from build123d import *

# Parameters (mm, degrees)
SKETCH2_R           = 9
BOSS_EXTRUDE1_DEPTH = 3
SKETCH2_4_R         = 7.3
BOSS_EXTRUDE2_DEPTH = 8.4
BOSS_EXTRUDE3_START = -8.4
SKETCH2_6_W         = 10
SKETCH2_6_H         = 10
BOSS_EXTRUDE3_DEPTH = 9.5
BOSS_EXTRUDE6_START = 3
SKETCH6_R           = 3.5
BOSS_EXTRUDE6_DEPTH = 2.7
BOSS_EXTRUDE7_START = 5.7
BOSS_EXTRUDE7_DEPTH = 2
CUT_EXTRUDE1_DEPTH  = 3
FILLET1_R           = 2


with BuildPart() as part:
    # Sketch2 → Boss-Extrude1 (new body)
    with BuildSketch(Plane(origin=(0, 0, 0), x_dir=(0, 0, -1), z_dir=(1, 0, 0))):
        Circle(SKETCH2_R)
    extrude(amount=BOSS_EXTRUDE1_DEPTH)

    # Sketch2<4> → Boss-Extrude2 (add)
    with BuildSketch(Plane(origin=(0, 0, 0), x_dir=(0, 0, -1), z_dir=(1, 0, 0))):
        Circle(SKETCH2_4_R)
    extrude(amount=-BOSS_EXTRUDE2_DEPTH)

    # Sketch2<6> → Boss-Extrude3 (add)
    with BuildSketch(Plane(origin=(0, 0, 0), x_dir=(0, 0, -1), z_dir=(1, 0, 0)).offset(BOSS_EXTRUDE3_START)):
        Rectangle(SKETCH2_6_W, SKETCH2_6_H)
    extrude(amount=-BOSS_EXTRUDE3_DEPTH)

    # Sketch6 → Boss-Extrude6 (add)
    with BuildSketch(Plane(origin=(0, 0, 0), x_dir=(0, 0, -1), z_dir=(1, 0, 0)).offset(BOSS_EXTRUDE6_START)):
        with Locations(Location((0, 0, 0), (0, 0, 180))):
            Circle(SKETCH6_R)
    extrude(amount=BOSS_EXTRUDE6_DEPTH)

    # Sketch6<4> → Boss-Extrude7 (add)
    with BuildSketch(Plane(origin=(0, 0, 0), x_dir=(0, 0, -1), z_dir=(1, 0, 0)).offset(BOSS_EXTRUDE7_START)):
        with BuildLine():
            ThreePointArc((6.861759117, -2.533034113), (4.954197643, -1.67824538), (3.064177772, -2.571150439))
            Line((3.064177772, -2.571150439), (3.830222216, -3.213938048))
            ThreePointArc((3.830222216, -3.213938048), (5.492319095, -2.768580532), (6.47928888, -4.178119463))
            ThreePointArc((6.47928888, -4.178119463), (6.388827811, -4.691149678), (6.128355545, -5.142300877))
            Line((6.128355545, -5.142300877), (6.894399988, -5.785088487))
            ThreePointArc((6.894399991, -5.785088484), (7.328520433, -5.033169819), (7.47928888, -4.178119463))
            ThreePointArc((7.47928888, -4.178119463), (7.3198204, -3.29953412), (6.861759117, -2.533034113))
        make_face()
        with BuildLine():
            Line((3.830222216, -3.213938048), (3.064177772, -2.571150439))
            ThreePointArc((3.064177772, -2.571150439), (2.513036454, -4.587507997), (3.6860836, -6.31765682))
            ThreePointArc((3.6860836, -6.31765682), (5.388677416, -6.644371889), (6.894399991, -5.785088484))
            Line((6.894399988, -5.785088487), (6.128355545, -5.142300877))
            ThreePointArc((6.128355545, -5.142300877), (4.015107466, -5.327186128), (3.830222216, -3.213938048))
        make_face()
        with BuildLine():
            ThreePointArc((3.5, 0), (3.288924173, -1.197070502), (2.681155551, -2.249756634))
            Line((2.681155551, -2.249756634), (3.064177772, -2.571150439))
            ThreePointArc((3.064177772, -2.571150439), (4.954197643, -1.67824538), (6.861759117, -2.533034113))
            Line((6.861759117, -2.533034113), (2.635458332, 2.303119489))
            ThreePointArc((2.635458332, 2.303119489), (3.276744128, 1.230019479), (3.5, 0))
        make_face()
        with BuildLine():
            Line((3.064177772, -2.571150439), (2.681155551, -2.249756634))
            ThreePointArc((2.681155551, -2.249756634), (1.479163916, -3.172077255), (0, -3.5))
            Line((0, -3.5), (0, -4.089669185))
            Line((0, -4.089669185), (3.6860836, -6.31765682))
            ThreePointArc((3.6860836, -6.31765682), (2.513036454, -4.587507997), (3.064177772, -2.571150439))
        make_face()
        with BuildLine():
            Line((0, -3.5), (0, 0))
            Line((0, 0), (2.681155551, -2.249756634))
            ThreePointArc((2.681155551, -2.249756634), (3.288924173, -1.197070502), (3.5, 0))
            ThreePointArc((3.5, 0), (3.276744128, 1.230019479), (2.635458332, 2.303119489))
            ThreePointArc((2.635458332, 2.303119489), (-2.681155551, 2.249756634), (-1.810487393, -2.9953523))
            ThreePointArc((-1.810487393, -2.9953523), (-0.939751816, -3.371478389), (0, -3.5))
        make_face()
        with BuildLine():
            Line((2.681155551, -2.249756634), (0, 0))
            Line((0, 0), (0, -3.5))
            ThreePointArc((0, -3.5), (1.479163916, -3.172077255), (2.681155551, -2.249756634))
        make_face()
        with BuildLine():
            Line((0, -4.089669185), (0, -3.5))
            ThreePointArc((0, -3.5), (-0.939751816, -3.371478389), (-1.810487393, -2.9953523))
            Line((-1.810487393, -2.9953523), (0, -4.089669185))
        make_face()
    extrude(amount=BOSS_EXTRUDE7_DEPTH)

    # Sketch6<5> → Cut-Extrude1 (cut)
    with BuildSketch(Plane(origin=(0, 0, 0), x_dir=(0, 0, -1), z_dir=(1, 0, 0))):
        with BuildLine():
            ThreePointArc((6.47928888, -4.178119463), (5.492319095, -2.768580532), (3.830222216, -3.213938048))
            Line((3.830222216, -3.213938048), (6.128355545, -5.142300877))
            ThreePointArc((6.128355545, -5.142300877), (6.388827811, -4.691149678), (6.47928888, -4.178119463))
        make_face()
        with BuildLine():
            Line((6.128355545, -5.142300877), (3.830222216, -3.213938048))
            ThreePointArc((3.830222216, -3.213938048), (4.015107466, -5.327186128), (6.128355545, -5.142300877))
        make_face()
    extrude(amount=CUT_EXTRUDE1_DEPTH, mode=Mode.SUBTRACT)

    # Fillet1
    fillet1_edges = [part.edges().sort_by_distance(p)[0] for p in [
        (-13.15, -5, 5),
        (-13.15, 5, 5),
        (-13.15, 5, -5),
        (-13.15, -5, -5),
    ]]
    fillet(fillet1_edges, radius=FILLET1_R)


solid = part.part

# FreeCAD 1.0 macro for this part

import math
import FreeCAD as App
import Part
import Sketcher
Q = App.Units.Quantity


def edges_at(feature, points):
    """Names of the edges that pass closest to the given points."""
    edges = feature.Shape.Edges
    near = lambda p: min(range(len(edges)), key=lambda i: edges[i].distToShape(Part.Vertex(*p))[0])
    return sorted({f"Edge{near(p) + 1}" for p in points})


def add_polygon(sketch, points):
    """Adds a closed chain of lines whose ends are joined by coincident constraints."""
    first, n = sketch.GeometryCount, len(points)
    for a, b in zip(points, points[1:] + points[:1]):
        sketch.addGeometry(Part.LineSegment(App.Vector(*a, 0), App.Vector(*b, 0)), False)
    for i in range(n):
        sketch.addConstraint(Sketcher.Constraint("Coincident", first + i, 2, first + (i + 1) % n, 1))

doc = App.newDocument("Part")
body = doc.addObject("PartDesign::Body", "Body")

# Sketch on YZ plane
sketch1 = doc.addObject("Sketcher::SketchObject", "Sketch")
body.addObject(sketch1)
sketch1.AttachmentSupport = (doc.YZ_Plane, [""])
sketch1.MapMode = "FlatFace"
sketch1.addGeometry(Part.Circle(App.Vector(0, 0, 0), App.Vector(0, 0, 1), 9), False)
sketch1.addConstraint(Sketcher.Constraint("Coincident", 0, 3, -1, 1))
sketch1.addConstraint(Sketcher.Constraint("Diameter", 0, Q("18 mm")))
pad1 = doc.addObject("PartDesign::Pad", "Pad")
body.addObject(pad1)
pad1.Profile = sketch1
pad1.Length = 3

# Sketch on YZ plane
sketch2 = doc.addObject("Sketcher::SketchObject", "Sketch001")
body.addObject(sketch2)
sketch2.AttachmentSupport = (doc.YZ_Plane, [""])
sketch2.MapMode = "FlatFace"
sketch2.addGeometry(Part.Circle(App.Vector(0, 0, 0), App.Vector(0, 0, 1), 7.3), False)
sketch2.addConstraint(Sketcher.Constraint("Coincident", 0, 3, -1, 1))
sketch2.addConstraint(Sketcher.Constraint("Diameter", 0, Q("14.6 mm")))
pad2 = doc.addObject("PartDesign::Pad", "Pad001")
body.addObject(pad2)
pad2.Profile = sketch2
pad2.Length = 8.4
pad2.Reversed = True

# Sketch on YZ plane
sketch3 = doc.addObject("Sketcher::SketchObject", "Sketch002")
body.addObject(sketch3)
sketch3.AttachmentSupport = (doc.YZ_Plane, [""])
sketch3.MapMode = "FlatFace"
sketch3.AttachmentOffset = App.Placement(App.Vector(0, 0, -8.4), App.Rotation())
add_polygon(sketch3, [(5, 5), (-5, 5), (-5, -5), (5, -5)])  # lines 0-3
sketch3.addConstraint(Sketcher.Constraint("Horizontal", 0))
sketch3.addConstraint(Sketcher.Constraint("Vertical", 1))
sketch3.addConstraint(Sketcher.Constraint("Horizontal", 2))
sketch3.addConstraint(Sketcher.Constraint("Vertical", 3))
sketch3.addConstraint(Sketcher.Constraint("Symmetric", 0, 2, 2, 2, -1, 1))
sketch3.addConstraint(Sketcher.Constraint("Equal", 2, 1))
sketch3.addConstraint(Sketcher.Constraint("DistanceX", 0, 2, 0, 1, Q("10 mm")))
pad3 = doc.addObject("PartDesign::Pad", "Pad002")
body.addObject(pad3)
pad3.Profile = sketch3
pad3.Length = 9.5
pad3.Reversed = True

# Sketch on YZ plane
sketch4 = doc.addObject("Sketcher::SketchObject", "Sketch003")
body.addObject(sketch4)
sketch4.AttachmentSupport = (doc.YZ_Plane, [""])
sketch4.MapMode = "FlatFace"
sketch4.AttachmentOffset = App.Placement(App.Vector(0, 0, 3), App.Rotation())
sketch4.addGeometry(Part.Circle(App.Vector(0, 0, 0), App.Vector(0, 0, 1), 3.5), False)
sketch4.addConstraint(Sketcher.Constraint("Coincident", 0, 3, -1, 1))
sketch4.addConstraint(Sketcher.Constraint("Diameter", 0, Q("7 mm")))
pad4 = doc.addObject("PartDesign::Pad", "Pad003")
body.addObject(pad4)
pad4.Profile = sketch4
pad4.Length = 2.7

# Sketch on YZ plane
sketch5 = doc.addObject("Sketcher::SketchObject", "Sketch004")
body.addObject(sketch5)
sketch5.AttachmentSupport = (doc.YZ_Plane, [""])
sketch5.MapMode = "FlatFace"
sketch5.AttachmentOffset = App.Placement(App.Vector(0, 0, 5.7), App.Rotation())
sketch5.addGeometry(Part.LineSegment(App.Vector(-2.995352, 1.810487, 0), App.Vector(-4.089669, 0, 0)), False)
sketch5.addGeometry(Part.LineSegment(App.Vector(-4.089669, 0, 0), App.Vector(-6.317657, -3.686084, 0)), False)
sketch5.addGeometry(Part.ArcOfCircle(Part.Circle(App.Vector(-4.178119, -4.979289, 0), App.Vector(0, 0, 1), 2.5), math.radians(148.849883), math.radians(230)), False)
sketch5.addGeometry(Part.ArcOfCircle(Part.Circle(App.Vector(-4.178119, -4.979289, 0), App.Vector(0, 0, 1), 2.5), math.radians(-130), math.radians(-90)), False)
sketch5.addGeometry(Part.ArcOfCircle(Part.Circle(App.Vector(-4.178119, -4.979289, 0), App.Vector(0, 0, 1), 2.5), math.radians(-90), math.radians(-48.849883)), False)
sketch5.addGeometry(Part.LineSegment(App.Vector(-2.533034, -6.861759, 0), App.Vector(2.303119, -2.635458, 0)), False)
sketch5.addGeometry(Part.ArcOfCircle(Part.Circle(App.Vector(0, 0, 0), App.Vector(0, 0, 1), 3.5), math.radians(-48.849883), math.radians(148.849883)), False)
sketch5.addGeometry(Part.ArcOfCircle(Part.Circle(App.Vector(-4.178119, -4.979289, 0), App.Vector(0, 0, 1), 1.5), math.radians(-130), math.radians(-90)), False)
sketch5.addGeometry(Part.ArcOfCircle(Part.Circle(App.Vector(-4.178119, -4.979289, 0), App.Vector(0, 0, 1), 1.5), math.radians(50), math.radians(230)), False)
sketch5.addGeometry(Part.ArcOfCircle(Part.Circle(App.Vector(-4.178119, -4.979289, 0), App.Vector(0, 0, 1), 1.5), math.radians(-90), math.radians(50)), False)
sketch5.addConstraint(Sketcher.Constraint("Coincident", 0, 2, 1, 1))
sketch5.addConstraint(Sketcher.Constraint("Tangent", 1, 2, 2, 1))
sketch5.addConstraint(Sketcher.Constraint("Tangent", 2, 2, 3, 1))
sketch5.addConstraint(Sketcher.Constraint("Tangent", 3, 2, 4, 1))
sketch5.addConstraint(Sketcher.Constraint("Tangent", 4, 2, 5, 1))
sketch5.addConstraint(Sketcher.Constraint("Tangent", 5, 2, 6, 1))
sketch5.addConstraint(Sketcher.Constraint("Tangent", 6, 2, 0, 1))
sketch5.addConstraint(Sketcher.Constraint("Tangent", 7, 1, 8, 2))
sketch5.addConstraint(Sketcher.Constraint("Tangent", 8, 1, 9, 2))
sketch5.addConstraint(Sketcher.Constraint("Tangent", 9, 1, 7, 2))
sketch5.addConstraint(Sketcher.Constraint("Coincident", 6, 3, -1, 1))
sketch5.addConstraint(Sketcher.Constraint("Coincident", 4, 3, 2, 3))
sketch5.addConstraint(Sketcher.Constraint("Coincident", 7, 3, 2, 3))
sketch5.addConstraint(Sketcher.Constraint("PointOnObject", 0, 2, -1))
sketch5.addConstraint(Sketcher.Constraint("Parallel", 0, 1))
sketch5.addConstraint(Sketcher.Constraint("Vertical", 9, 3, 3, 2))
sketch5.addConstraint(Sketcher.Constraint("Vertical", 3, 2, 9, 1))
sketch5.addConstraint(Sketcher.Constraint("Radius", 2, Q("2.5 mm")))
sketch5.addConstraint(Sketcher.Constraint("Radius", 6, Q("3.5 mm")))
sketch5.addConstraint(Sketcher.Constraint("Radius", 7, Q("1.5 mm")))
sketch5.addConstraint(Sketcher.Constraint("DistanceY", 2, 2, -1, 1, Q("6.8944 mm")))
sketch5.addConstraint(Sketcher.Constraint("DistanceX", 7, 1, -1, 1, Q("5.142301 mm")))
sketch5.addConstraint(Sketcher.Constraint("DistanceY", 4, 2, 5, 2, Q("4.226301 mm")))
sketch5.addConstraint(Sketcher.Constraint("DistanceX", 2, 3, -1, 1, Q("4.178119 mm")))
sketch5.addConstraint(Sketcher.Constraint("DistanceX", 8, 1, -1, 1, Q("3.213938 mm")))
pad5 = doc.addObject("PartDesign::Pad", "Pad004")
body.addObject(pad5)
pad5.Profile = sketch5
pad5.Length = 2

# Sketch on YZ plane
sketch6 = doc.addObject("Sketcher::SketchObject", "Sketch005")
body.addObject(sketch6)
sketch6.AttachmentSupport = (doc.YZ_Plane, [""])
sketch6.MapMode = "FlatFace"
sketch6.addGeometry(Part.ArcOfCircle(Part.Circle(App.Vector(-4.178119, -4.979289, 0), App.Vector(0, 0, 1), 1.5), math.radians(-90), math.radians(50)), False)
sketch6.addGeometry(Part.ArcOfCircle(Part.Circle(App.Vector(-4.178119, -4.979289, 0), App.Vector(0, 0, 1), 1.5), math.radians(50), math.radians(230)), False)
sketch6.addGeometry(Part.ArcOfCircle(Part.Circle(App.Vector(-4.178119, -4.979289, 0), App.Vector(0, 0, 1), 1.5), math.radians(-130), math.radians(-90)), False)
sketch6.addConstraint(Sketcher.Constraint("Tangent", 0, 2, 1, 1))
sketch6.addConstraint(Sketcher.Constraint("Tangent", 1, 2, 2, 1))
sketch6.addConstraint(Sketcher.Constraint("Tangent", 2, 2, 0, 1))
sketch6.addConstraint(Sketcher.Constraint("Vertical", 1, 3, 2, 2))
sketch6.addConstraint(Sketcher.Constraint("Radius", 0, Q("1.5 mm")))
sketch6.addConstraint(Sketcher.Constraint("DistanceX", 1, 2, -1, 1, Q("5.142301 mm")))
sketch6.addConstraint(Sketcher.Constraint("DistanceX", 0, 3, -1, 1, Q("4.178119 mm")))
sketch6.addConstraint(Sketcher.Constraint("DistanceY", 0, 3, -1, 1, Q("4.979289 mm")))
sketch6.addConstraint(Sketcher.Constraint("DistanceX", 0, 2, -1, 1, Q("3.213938 mm")))
pocket1 = doc.addObject("PartDesign::Pocket", "Pocket")
body.addObject(pocket1)
pocket1.Profile = sketch6
pocket1.Length = 3
pocket1.Reversed = True
doc.recompute()

fillet = doc.addObject("PartDesign::Fillet", "Fillet")
body.addObject(fillet)
fillet.Base = (pocket1, edges_at(pocket1, [
    (-13.15, -5, 5),
    (-13.15, 5, 5),
    (-13.15, 5, -5),
    (-13.15, -5, -5),
]))
fillet.Radius = 2

doc.recompute()
